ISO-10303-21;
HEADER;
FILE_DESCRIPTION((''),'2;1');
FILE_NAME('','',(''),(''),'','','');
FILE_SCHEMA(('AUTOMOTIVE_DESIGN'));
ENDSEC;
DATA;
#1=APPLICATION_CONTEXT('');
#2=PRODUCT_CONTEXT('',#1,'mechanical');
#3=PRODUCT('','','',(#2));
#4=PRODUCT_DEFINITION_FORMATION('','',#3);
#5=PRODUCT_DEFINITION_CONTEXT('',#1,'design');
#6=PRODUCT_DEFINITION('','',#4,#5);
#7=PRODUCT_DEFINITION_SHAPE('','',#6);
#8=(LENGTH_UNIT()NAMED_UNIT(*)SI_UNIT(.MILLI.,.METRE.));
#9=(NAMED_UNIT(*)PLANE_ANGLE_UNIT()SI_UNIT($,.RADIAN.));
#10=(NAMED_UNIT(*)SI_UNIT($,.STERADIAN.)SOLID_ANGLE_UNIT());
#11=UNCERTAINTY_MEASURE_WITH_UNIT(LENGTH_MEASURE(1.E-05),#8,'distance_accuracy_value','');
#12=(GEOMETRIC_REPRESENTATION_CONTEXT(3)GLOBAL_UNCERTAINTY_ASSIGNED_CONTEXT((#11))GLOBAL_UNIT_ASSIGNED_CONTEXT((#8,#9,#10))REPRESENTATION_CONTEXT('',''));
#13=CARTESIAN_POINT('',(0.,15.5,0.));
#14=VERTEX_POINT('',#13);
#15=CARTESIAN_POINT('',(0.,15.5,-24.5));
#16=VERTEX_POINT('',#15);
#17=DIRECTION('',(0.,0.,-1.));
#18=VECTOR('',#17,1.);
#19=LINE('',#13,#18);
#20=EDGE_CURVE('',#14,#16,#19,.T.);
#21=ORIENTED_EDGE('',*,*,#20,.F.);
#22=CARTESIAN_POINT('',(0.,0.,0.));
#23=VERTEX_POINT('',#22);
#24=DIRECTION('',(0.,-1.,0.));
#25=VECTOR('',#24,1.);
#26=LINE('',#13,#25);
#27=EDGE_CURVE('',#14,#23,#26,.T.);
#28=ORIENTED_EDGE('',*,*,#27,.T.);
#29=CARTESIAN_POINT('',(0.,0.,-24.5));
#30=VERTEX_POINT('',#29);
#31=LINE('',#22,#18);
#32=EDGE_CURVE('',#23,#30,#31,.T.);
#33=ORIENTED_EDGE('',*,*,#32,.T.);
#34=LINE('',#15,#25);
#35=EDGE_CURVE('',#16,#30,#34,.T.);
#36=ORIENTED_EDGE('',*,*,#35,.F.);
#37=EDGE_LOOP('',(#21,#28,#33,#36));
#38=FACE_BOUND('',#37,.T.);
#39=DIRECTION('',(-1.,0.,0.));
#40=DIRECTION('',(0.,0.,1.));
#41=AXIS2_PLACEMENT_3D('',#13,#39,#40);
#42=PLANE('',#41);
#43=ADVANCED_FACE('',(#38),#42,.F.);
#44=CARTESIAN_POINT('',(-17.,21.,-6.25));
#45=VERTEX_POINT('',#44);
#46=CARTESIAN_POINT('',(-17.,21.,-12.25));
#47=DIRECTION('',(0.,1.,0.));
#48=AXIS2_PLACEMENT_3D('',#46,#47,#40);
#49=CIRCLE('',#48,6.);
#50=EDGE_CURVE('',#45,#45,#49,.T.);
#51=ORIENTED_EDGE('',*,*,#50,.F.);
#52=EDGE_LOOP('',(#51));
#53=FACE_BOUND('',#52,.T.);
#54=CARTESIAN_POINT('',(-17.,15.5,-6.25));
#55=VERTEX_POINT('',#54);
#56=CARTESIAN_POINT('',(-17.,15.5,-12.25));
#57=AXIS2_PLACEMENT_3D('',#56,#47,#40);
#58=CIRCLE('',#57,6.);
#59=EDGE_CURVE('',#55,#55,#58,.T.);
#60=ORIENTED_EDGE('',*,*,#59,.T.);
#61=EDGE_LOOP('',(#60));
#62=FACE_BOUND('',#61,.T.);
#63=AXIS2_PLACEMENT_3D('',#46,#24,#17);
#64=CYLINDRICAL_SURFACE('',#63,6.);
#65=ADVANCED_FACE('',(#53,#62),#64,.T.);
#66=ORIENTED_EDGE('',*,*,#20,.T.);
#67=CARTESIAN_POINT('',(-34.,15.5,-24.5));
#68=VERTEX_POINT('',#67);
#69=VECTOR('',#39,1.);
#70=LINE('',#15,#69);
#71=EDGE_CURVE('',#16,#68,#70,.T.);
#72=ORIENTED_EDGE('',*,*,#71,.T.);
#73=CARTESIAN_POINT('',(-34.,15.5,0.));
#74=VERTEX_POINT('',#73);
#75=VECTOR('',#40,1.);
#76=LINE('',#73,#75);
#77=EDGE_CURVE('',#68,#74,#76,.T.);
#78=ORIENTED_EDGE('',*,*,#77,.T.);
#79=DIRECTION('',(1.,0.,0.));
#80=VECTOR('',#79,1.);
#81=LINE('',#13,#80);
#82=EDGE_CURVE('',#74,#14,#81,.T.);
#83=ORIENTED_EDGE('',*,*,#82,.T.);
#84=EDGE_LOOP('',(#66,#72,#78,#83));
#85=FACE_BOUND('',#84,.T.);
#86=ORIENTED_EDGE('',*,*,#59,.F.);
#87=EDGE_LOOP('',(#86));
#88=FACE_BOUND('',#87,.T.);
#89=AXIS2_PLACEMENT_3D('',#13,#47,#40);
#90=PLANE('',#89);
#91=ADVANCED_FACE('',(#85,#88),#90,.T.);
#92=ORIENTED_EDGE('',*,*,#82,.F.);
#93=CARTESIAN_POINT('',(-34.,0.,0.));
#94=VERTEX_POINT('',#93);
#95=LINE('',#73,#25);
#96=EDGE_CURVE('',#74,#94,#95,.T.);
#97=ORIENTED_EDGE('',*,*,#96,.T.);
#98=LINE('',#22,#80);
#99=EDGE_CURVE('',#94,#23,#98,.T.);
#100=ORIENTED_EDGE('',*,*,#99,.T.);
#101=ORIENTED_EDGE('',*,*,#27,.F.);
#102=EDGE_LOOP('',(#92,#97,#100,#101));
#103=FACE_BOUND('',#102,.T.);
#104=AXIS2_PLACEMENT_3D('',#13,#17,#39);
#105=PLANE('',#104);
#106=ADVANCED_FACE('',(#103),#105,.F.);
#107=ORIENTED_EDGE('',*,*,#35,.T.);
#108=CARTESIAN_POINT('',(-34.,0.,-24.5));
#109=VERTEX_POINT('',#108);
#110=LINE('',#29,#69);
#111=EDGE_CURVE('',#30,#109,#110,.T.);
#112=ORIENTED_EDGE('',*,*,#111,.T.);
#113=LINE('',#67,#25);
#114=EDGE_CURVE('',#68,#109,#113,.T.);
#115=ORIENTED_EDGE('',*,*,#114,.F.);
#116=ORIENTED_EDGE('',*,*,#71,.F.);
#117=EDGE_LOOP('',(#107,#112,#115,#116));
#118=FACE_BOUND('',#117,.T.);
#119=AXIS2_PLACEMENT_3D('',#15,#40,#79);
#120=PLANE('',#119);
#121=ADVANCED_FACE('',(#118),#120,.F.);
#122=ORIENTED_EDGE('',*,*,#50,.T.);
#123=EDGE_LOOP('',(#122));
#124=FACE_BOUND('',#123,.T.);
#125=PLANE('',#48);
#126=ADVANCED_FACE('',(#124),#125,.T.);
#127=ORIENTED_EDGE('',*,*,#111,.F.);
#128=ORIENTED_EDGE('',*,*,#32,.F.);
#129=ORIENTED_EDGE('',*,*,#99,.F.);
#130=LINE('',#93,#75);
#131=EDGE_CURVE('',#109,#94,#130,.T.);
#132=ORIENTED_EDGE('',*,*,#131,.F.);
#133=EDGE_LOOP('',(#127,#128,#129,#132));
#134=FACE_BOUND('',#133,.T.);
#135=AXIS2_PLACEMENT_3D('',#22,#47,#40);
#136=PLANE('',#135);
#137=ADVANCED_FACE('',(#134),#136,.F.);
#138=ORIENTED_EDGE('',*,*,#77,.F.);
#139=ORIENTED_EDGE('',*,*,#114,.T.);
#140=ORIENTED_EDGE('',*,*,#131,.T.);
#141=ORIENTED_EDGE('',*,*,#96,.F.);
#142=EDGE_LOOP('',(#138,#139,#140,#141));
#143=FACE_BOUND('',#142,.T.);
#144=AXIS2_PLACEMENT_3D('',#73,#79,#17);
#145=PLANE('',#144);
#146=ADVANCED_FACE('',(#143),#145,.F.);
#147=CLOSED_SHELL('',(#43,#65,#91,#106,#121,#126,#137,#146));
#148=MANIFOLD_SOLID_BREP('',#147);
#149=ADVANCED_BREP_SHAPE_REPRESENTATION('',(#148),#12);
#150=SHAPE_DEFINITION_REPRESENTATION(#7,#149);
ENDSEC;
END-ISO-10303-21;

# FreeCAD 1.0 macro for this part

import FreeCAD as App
import Part
import Sketcher
from FreeCAD import Vector

doc = App.newDocument("Part")
body = doc.addObject("PartDesign::Body", "Body")

# Sketch on XZ plane
sketch1 = doc.addObject("Sketcher::SketchObject", "Sketch")
body.addObject(sketch1)
sketch1.AttachmentSupport = (doc.XZ_Plane, [""])
sketch1.MapMode = "FlatFace"
sketch1.addGeometry([
    Part.LineSegment(Vector(-34, -24, 0), Vector(-34, 0, 0)),
    Part.LineSegment(Vector(-34, 0, 0), Vector(0, 0, 0)),
    Part.LineSegment(Vector(0, 0, 0), Vector(0, -24, 0)),
    Part.LineSegment(Vector(0, -24, 0), Vector(-34, -24, 0)),
], False)
sketch1.addConstraint([
    Sketcher.Constraint("Coincident", 0, 2, 1, 1),
    Sketcher.Constraint("Coincident", 1, 2, 2, 1),
    Sketcher.Constraint("Coincident", 2, 2, 3, 1),
    Sketcher.Constraint("Coincident", 3, 2, 0, 1),
    Sketcher.Constraint("Vertical", 0),
    Sketcher.Constraint("Horizontal", 1),
    Sketcher.Constraint("Vertical", 2),
    Sketcher.Constraint("Horizontal", 3),
    Sketcher.Constraint("Coincident", 1, 2, -1, 1),
    Sketcher.Constraint("DistanceX", 1, 1, 1, 2, 34.0),
    Sketcher.Constraint("DistanceY", 0, 1, 0, 2, 24.5),
])
pad1 = doc.addObject("PartDesign::Pad", "Pad")
body.addObject(pad1)
pad1.Profile = sketch1
pad1.Length = 15.5
pad1.Reversed = True

# Sketch on XZ plane
sketch2 = doc.addObject("Sketcher::SketchObject", "Sketch001")
body.addObject(sketch2)
sketch2.AttachmentSupport = (doc.XZ_Plane, [""])
sketch2.MapMode = "FlatFace"
sketch2.AttachmentOffset = App.Placement(Vector(0, 0, -15.5), App.Rotation())
sketch2.addGeometry(Part.Circle(Vector(-17, -12, 0), Vector(0, 0, 1), 6), False)
sketch2.addConstraint([
    Sketcher.Constraint("Diameter", 0, 12.0),
    Sketcher.Constraint("DistanceX", 0, 3, -1, 1, 17.0),
    Sketcher.Constraint("DistanceY", 0, 3, -1, 1, 12.25),
])
pad2 = doc.addObject("PartDesign::Pad", "Pad001")
body.addObject(pad2)
pad2.Profile = sketch2
pad2.Length = 5.5
pad2.Reversed = True

doc.recompute()
